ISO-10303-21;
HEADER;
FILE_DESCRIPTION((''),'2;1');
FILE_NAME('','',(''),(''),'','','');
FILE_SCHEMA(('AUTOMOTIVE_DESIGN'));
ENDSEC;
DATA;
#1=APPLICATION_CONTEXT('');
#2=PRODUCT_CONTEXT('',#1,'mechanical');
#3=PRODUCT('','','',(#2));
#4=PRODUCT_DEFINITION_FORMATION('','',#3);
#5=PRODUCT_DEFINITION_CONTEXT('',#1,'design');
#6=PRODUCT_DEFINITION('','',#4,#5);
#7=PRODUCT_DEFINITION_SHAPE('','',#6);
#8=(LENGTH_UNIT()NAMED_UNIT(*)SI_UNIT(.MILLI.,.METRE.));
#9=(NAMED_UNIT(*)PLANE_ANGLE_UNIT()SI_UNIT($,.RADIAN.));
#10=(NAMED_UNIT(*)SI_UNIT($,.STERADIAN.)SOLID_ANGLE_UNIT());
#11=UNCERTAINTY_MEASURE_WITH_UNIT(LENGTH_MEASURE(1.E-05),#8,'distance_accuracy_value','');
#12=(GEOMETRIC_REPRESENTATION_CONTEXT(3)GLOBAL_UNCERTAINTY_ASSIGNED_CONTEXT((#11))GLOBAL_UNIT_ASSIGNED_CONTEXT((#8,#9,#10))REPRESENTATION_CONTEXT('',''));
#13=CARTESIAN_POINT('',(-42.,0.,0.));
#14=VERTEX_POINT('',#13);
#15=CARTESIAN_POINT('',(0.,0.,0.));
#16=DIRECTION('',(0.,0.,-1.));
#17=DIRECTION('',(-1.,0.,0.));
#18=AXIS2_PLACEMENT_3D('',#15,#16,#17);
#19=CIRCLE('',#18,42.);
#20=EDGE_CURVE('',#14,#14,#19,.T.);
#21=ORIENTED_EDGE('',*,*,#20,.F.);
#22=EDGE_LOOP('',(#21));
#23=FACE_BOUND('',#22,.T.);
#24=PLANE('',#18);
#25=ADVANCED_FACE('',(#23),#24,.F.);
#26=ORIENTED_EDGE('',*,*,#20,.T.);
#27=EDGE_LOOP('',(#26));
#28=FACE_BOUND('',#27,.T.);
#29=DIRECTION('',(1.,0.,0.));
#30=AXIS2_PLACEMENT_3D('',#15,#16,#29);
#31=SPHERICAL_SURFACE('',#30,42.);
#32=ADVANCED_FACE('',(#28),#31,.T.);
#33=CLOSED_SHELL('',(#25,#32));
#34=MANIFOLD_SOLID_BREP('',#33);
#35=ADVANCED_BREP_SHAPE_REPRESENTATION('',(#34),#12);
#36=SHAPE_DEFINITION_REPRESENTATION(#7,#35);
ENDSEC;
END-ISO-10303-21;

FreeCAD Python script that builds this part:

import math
import FreeCAD as App
import Part
import Sketcher

V = App.Vector
Q = App.Units.Quantity

doc = App.newDocument("Part")
params = doc.addObject("Spreadsheet::Sheet", "Params")
for row, (alias, value) in enumerate([
    ("sketch1_radius", "42 mm"),
    ("revolution_angle", "360 deg"),
], start=1):
    params.set(f"A{row}", alias)
    params.set(f"B{row}", "=" + value)
    params.setAlias(f"B{row}", alias)

body = doc.addObject("PartDesign::Body", "Body")

sketch1 = body.newObject("Sketcher::SketchObject", "Sketch")
sketch1.AttachmentSupport = (doc.getObject("XZ_Plane"), [""])
sketch1.MapMode = "FlatFace"
sketch1.addGeometry([
    Part.LineSegment(V(0, -42, 0), V(0, 0, 0)),
    Part.LineSegment(V(0, 0, 0), V(42, 0, 0)),
    Part.ArcOfCircle(Part.Circle(V(0, 0, 0), V(0, 0, 1), 42), math.radians(-90), math.radians(0)),
], False)
sketch1.addConstraint([
    Sketcher.Constraint("Coincident", 0, 2, 1, 1),
    Sketcher.Constraint("Coincident", 1, 2, 2, 2),
    Sketcher.Constraint("Coincident", 2, 1, 0, 1),
    Sketcher.Constraint("Vertical", 0),
    Sketcher.Constraint("Horizontal", 1),
    Sketcher.Constraint("Coincident", 2, 3, -1, 1),
    Sketcher.Constraint("Coincident", 0, 2, -1, 1),
    Sketcher.Constraint("Radius", 2, Q("42 mm")),
])
sketch1.setExpression("Constraints[7]", "Params.sketch1_radius")
revolution = body.newObject("PartDesign::Revolution", "Revolution")
revolution.Profile = sketch1
revolution.ReferenceAxis = (sketch1, ["V_Axis"])
revolution.setExpression("Angle", "Params.revolution_angle")

doc.recompute()
